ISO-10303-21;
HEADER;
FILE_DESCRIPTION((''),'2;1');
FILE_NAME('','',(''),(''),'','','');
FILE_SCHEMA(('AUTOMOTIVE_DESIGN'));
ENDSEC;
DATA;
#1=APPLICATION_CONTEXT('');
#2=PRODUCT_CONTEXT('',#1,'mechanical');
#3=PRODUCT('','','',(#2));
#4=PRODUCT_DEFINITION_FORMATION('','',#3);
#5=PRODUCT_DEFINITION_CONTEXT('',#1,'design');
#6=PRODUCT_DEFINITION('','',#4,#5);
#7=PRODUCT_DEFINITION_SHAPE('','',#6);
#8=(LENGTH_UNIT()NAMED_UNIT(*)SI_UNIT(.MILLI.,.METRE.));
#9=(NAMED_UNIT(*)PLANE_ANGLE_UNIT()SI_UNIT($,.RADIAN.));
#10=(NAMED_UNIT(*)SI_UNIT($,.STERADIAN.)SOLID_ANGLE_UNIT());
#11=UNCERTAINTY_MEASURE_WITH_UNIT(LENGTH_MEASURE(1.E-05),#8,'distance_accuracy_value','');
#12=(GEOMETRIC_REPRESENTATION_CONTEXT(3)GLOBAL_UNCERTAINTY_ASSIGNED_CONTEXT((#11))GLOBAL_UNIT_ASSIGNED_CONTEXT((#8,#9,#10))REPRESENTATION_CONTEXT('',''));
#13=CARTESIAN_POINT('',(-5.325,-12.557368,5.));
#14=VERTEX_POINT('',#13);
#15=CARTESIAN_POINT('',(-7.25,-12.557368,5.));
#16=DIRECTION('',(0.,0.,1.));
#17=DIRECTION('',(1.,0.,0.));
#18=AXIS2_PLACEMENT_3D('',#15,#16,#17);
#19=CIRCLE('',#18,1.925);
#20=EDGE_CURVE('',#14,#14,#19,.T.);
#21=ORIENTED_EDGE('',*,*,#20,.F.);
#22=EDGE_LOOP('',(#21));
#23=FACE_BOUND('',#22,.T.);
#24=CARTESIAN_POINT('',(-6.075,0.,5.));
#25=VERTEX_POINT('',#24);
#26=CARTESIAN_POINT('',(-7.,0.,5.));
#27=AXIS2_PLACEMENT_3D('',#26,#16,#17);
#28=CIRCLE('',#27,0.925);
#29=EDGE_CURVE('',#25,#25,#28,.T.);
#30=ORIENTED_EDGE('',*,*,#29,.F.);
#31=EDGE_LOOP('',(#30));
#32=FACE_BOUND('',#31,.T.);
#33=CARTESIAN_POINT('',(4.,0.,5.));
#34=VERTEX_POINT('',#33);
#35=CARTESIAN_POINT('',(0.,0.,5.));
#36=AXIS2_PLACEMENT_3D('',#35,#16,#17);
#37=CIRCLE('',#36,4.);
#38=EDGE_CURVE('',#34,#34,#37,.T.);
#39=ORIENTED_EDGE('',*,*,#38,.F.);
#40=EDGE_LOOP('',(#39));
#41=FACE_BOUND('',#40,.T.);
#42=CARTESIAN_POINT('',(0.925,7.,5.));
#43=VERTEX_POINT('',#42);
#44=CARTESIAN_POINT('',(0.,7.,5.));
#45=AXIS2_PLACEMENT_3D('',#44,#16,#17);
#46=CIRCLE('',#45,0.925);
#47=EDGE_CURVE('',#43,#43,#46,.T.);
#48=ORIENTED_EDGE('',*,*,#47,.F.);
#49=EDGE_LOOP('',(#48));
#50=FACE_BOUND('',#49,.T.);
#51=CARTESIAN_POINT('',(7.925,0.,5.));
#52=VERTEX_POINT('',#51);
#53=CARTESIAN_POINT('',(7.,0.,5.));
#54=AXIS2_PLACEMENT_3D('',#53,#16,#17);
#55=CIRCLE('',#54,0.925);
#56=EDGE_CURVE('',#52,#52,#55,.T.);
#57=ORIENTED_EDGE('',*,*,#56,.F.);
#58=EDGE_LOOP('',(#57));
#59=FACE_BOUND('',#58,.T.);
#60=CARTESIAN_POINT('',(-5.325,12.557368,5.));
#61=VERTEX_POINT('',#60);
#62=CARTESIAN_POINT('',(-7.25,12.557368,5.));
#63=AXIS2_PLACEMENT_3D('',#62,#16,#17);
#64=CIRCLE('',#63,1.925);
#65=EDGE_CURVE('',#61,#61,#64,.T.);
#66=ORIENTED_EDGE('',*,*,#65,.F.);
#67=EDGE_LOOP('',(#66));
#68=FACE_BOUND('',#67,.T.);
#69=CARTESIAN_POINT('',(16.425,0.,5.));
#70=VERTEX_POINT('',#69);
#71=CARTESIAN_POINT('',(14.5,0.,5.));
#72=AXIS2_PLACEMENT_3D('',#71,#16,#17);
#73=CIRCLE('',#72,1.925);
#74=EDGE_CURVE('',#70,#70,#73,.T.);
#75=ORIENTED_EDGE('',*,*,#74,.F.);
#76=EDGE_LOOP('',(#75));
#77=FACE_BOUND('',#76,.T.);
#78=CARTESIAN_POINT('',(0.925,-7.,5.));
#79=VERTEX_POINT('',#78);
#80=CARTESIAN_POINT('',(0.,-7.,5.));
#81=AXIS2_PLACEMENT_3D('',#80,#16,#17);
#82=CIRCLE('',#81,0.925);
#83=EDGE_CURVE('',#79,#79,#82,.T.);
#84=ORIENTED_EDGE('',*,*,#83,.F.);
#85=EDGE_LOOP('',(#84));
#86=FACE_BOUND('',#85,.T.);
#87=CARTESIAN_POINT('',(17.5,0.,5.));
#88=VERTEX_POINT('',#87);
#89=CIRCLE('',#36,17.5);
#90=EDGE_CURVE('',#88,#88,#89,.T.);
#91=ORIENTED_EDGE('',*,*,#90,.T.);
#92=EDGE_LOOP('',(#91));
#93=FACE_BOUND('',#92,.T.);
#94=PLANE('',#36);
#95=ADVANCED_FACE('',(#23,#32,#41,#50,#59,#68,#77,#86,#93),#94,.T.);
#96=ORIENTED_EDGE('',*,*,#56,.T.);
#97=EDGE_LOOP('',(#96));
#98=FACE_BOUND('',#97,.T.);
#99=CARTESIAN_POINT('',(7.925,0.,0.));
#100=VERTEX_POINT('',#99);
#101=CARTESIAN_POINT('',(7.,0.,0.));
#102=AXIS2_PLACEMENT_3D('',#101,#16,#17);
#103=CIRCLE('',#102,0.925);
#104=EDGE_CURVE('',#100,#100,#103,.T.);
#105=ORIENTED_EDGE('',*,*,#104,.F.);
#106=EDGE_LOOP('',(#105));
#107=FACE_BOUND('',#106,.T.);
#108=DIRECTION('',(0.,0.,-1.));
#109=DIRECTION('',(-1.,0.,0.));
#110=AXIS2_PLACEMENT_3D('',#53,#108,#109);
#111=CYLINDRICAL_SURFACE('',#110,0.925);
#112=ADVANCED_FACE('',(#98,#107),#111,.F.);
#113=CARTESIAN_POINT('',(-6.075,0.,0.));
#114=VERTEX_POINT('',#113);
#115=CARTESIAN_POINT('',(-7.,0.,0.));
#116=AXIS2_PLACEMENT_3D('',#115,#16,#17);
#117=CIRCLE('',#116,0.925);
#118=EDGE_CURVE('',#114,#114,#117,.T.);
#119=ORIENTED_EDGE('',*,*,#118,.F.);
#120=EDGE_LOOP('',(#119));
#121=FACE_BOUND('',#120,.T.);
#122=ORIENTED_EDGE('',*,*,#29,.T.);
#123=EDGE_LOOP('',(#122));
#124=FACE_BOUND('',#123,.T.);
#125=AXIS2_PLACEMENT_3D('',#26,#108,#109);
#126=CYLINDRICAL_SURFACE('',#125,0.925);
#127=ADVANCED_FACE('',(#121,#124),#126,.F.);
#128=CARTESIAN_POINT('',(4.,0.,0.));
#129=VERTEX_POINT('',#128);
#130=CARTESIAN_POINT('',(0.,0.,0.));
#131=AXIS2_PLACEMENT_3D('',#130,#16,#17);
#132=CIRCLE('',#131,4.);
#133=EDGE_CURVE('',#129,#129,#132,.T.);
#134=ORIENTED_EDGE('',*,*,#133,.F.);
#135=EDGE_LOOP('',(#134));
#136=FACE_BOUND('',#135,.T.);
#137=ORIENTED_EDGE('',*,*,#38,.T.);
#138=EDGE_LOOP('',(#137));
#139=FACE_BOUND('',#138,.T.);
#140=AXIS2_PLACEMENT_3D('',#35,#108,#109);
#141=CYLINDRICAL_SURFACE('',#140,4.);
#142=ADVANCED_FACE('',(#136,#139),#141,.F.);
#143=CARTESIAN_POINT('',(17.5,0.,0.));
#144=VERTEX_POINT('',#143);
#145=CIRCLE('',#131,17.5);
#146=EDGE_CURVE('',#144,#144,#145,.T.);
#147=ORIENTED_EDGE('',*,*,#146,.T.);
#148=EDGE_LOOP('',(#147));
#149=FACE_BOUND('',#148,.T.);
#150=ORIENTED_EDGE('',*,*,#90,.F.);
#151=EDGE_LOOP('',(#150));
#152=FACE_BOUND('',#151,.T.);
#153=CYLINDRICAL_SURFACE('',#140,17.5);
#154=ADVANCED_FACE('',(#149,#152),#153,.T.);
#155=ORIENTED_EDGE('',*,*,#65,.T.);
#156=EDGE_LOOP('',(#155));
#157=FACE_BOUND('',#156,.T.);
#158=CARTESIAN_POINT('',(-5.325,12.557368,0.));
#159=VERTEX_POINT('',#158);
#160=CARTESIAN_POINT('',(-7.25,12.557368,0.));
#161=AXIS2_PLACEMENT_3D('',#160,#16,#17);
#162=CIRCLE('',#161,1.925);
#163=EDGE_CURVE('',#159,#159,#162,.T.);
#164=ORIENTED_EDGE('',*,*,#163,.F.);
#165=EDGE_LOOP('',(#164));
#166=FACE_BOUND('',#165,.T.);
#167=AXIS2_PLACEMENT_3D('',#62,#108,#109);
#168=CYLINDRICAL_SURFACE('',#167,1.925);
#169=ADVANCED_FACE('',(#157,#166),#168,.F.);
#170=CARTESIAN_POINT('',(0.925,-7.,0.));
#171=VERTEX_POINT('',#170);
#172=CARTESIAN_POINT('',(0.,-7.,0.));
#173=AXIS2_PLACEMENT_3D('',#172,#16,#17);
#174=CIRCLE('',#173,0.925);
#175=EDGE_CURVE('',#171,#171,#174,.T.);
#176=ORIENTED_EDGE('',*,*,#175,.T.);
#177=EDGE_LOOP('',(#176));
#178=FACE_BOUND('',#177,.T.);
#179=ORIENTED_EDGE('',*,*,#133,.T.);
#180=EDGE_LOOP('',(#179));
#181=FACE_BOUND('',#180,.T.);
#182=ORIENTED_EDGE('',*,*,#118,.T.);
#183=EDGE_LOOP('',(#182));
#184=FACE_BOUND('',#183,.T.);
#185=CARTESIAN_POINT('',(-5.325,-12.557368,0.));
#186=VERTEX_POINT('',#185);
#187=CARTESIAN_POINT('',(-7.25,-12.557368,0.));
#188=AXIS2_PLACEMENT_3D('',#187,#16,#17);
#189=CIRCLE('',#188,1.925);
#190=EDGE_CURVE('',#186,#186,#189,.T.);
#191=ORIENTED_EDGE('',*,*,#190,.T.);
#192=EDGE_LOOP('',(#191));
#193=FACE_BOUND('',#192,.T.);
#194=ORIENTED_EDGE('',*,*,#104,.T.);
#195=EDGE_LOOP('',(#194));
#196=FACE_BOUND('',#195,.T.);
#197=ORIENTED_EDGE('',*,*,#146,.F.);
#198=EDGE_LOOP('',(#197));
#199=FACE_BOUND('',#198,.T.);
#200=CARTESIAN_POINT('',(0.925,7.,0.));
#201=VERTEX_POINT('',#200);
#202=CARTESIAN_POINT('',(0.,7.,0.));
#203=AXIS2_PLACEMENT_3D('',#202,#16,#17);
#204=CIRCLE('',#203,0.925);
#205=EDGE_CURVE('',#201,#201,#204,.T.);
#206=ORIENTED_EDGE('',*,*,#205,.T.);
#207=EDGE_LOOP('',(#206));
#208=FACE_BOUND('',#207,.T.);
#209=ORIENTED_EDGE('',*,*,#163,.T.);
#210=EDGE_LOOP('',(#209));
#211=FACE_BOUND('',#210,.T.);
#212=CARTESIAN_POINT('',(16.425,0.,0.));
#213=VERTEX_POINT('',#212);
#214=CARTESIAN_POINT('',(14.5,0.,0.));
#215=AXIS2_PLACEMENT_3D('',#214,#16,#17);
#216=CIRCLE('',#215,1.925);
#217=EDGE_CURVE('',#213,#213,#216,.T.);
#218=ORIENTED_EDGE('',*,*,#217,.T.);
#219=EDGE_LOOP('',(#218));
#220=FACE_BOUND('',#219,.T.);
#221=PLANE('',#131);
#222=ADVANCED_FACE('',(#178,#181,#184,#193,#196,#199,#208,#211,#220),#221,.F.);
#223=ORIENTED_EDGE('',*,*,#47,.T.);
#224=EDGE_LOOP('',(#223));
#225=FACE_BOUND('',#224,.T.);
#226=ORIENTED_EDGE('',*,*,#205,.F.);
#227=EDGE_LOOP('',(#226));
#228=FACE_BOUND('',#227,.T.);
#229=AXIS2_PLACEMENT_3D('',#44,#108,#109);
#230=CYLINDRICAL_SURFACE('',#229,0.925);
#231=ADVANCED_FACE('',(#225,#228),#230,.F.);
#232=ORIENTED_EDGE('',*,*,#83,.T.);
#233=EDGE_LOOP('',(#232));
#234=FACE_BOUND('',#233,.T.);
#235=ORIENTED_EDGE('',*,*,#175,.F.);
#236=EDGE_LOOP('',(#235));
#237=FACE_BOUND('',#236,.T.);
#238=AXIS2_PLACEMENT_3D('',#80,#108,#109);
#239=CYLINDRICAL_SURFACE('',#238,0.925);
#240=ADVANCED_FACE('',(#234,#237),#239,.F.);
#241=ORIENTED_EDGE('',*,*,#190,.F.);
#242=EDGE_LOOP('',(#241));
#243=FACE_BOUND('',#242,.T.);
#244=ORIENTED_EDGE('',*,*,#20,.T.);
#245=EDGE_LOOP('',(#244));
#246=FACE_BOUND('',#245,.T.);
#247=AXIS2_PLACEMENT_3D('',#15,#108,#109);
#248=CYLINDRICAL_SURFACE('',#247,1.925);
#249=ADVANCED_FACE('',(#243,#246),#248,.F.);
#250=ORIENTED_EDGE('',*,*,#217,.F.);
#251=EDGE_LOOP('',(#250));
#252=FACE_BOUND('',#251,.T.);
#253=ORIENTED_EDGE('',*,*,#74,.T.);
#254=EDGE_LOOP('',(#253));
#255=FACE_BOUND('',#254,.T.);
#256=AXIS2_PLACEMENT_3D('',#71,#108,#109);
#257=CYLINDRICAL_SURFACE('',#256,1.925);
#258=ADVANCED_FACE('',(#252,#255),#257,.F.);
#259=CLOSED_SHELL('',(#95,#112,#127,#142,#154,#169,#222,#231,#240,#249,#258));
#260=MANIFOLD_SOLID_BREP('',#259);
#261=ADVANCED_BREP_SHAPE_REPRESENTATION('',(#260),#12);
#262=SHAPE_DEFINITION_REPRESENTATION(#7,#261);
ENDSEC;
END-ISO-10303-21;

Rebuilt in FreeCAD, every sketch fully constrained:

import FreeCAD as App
import Part
import Sketcher
Q = App.Units.Quantity

doc = App.newDocument("Part")
params = doc.addObject("Spreadsheet::Sheet", "Params")
for row, (alias, value) in enumerate([
    ("sketch1_diameter", "35 mm"),
    ("sketch1_diameter2", "8 mm"),
    ("sketch1_diameter3", "3.85 mm"),
    ("sketch1_diameter4", "1.85 mm"),
    ("pad1_length", "5 mm"),
], start=1):
    params.set(f"A{row}", alias)
    params.set(f"B{row}", "=" + value)
    params.setAlias(f"B{row}", alias)

body = doc.addObject("PartDesign::Body", "Body")

sketch1 = body.newObject("Sketcher::SketchObject", "Sketch")
sketch1.AttachmentSupport = (doc.getObject("XY_Plane"), [""])
sketch1.MapMode = "FlatFace"
sketch1.addGeometry(Part.Circle(App.Vector(0, 0, 0), App.Vector(0, 0, 1), 17.5), False)
sketch1.addGeometry(Part.Circle(App.Vector(-7.2, -12.6, 0), App.Vector(0, 0, 1), 1.9), False)
sketch1.addGeometry(Part.Circle(App.Vector(0, -7, 0), App.Vector(0, 0, 1), 0.9), False)
sketch1.addGeometry(Part.Circle(App.Vector(-7, 0, 0), App.Vector(0, 0, 1), 0.9), False)
sketch1.addGeometry(Part.Circle(App.Vector(0, 0, 0), App.Vector(0, 0, 1), 4), False)
sketch1.addGeometry(Part.Circle(App.Vector(0, 7, 0), App.Vector(0, 0, 1), 0.9), False)
sketch1.addGeometry(Part.Circle(App.Vector(-7.2, 12.6, 0), App.Vector(0, 0, 1), 1.9), False)
sketch1.addGeometry(Part.Circle(App.Vector(7, 0, 0), App.Vector(0, 0, 1), 0.9), False)
sketch1.addGeometry(Part.Circle(App.Vector(14.5, 0, 0), App.Vector(0, 0, 1), 1.9), False)
sketch1.addConstraint(Sketcher.Constraint("Coincident", 0, 3, -1, 1))
sketch1.addConstraint(Sketcher.Constraint("Coincident", 4, 3, -1, 1))
sketch1.addConstraint(Sketcher.Constraint("Equal", 2, 3))
sketch1.addConstraint(Sketcher.Constraint("Equal", 3, 5))
sketch1.addConstraint(Sketcher.Constraint("Equal", 1, 6))
sketch1.addConstraint(Sketcher.Constraint("Equal", 5, 7))
sketch1.addConstraint(Sketcher.Constraint("Equal", 6, 8))
sketch1.addConstraint(Sketcher.Constraint("Symmetric", 2, 3, 5, 3, -1, 1))
sketch1.addConstraint(Sketcher.Constraint("Symmetric", 3, 3, 7, 3, -1, 1))
sketch1.addConstraint(Sketcher.Constraint("Symmetric", 1, 3, 6, 3, -1))
sketch1.addConstraint(Sketcher.Constraint("PointOnObject", 2, 3, -2))
sketch1.addConstraint(Sketcher.Constraint("PointOnObject", 3, 3, -1))
sketch1.addConstraint(Sketcher.Constraint("PointOnObject", 8, 3, -1))
sketch1.addConstraint(Sketcher.Constraint("Diameter", 0, Q("35 mm")))
sketch1.addConstraint(Sketcher.Constraint("Diameter", 4, Q("8 mm")))
sketch1.addConstraint(Sketcher.Constraint("Diameter", 1, Q("3.85 mm")))
sketch1.addConstraint(Sketcher.Constraint("Diameter", 2, Q("1.85 mm")))
sketch1.addConstraint(Sketcher.Constraint("DistanceY", 2, 3, -1, 1, Q("7 mm")))
sketch1.addConstraint(Sketcher.Constraint("DistanceX", 3, 3, -1, 1, Q("7 mm")))
sketch1.addConstraint(Sketcher.Constraint("DistanceX", -1, 1, 8, 3, Q("14.5 mm")))
sketch1.addConstraint(Sketcher.Constraint("DistanceX", 1, 3, -1, 1, Q("7.25 mm")))
sketch1.addConstraint(Sketcher.Constraint("DistanceY", 1, 3, -1, 1, Q("12.557368 mm")))
sketch1.setExpression("Constraints[13]", "Params.sketch1_diameter")
sketch1.setExpression("Constraints[14]", "Params.sketch1_diameter2")
sketch1.setExpression("Constraints[15]", "Params.sketch1_diameter3")
sketch1.setExpression("Constraints[16]", "Params.sketch1_diameter4")
pad1 = body.newObject("PartDesign::Pad", "Pad")
pad1.Profile = sketch1
pad1.setExpression("Length", "Params.pad1_length")

doc.recompute()
